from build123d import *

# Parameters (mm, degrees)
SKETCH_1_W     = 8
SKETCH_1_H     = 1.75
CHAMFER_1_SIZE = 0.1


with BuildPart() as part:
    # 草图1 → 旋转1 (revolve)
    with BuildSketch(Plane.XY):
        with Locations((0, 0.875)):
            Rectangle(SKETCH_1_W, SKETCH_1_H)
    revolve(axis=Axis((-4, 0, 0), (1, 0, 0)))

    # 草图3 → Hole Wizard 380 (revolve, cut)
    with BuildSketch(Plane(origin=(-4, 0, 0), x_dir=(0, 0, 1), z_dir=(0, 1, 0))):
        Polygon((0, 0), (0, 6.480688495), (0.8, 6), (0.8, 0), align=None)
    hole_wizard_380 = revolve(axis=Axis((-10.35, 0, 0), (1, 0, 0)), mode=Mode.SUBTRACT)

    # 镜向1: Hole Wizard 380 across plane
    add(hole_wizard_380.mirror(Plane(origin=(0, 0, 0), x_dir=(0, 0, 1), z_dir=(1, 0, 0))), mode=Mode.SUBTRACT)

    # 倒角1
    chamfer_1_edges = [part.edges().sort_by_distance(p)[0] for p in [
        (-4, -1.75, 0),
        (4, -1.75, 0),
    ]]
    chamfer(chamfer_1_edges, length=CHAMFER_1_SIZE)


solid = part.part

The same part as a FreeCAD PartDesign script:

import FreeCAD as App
import Part
import Sketcher

V = App.Vector
Q = App.Units.Quantity


def edges_at(feature, points):
    """Names of the edges that pass closest to the given points."""
    edges = feature.Shape.Edges
    near = lambda p: min(range(len(edges)), key=lambda i: edges[i].distToShape(Part.Vertex(*p))[0])
    return sorted({f"Edge{near(p) + 1}" for p in points})


def add_polygon(sketch, points):
    """Adds a closed chain of lines whose ends are joined by coincident constraints."""
    first, n = sketch.GeometryCount, len(points)
    for a, b in zip(points, points[1:] + points[:1]):
        sketch.addGeometry(Part.LineSegment(App.Vector(*a, 0), App.Vector(*b, 0)), False)
    for i in range(n):
        sketch.addConstraint(Sketcher.Constraint("Coincident", first + i, 2, first + (i + 1) % n, 1))

doc = App.newDocument("Part")
body = doc.addObject("PartDesign::Body", "Body")

# Sketch on XY plane
sketch1 = body.newObject("Sketcher::SketchObject", "Sketch")
sketch1.AttachmentSupport = (doc.getObject("XY_Plane"), [""])
sketch1.MapMode = "FlatFace"
add_polygon(sketch1, [(-4, 1.8), (-4, 0), (4, 0), (4, 1.8)])  # lines 0-3
sketch1.addConstraint([
    Sketcher.Constraint("Vertical", 0),
    Sketcher.Constraint("Horizontal", 1),
    Sketcher.Constraint("Vertical", 2),
    Sketcher.Constraint("Horizontal", 3),
    Sketcher.Constraint("Symmetric", 0, 2, 1, 2, -1, 1),
    Sketcher.Constraint("DistanceX", 1, 1, 1, 2, Q("8 mm")),
    Sketcher.Constraint("DistanceY", 0, 2, 0, 1, Q("1.75 mm")),
])
revolution = body.newObject("PartDesign::Revolution", "Revolution")
revolution.Profile = sketch1
revolution.ReferenceAxis = (sketch1, ["H_Axis"])
revolution.Angle = 360

# Sketch on XZ plane
sketch2 = body.newObject("Sketcher::SketchObject", "Sketch001")
sketch2.AttachmentSupport = (doc.getObject("XZ_Plane"), [""])
sketch2.MapMode = "FlatFace"
add_polygon(sketch2, [(2.5, 0), (-4, 0), (-4, 0.8), (2, 0.8)])  # lines 0-3
sketch2.addConstraint([
    Sketcher.Constraint("Horizontal", 0),
    Sketcher.Constraint("Vertical", 1),
    Sketcher.Constraint("Horizontal", 2),
    Sketcher.Constraint("PointOnObject", 0, 2, -1),
    Sketcher.Constraint("DistanceX", 2, 1, 2, 2, Q("6 mm")),
    Sketcher.Constraint("Angle", 3, Q("-59 deg")),
    Sketcher.Constraint("DistanceY", 1, 1, 1, 2, Q("0.8 mm")),
    Sketcher.Constraint("DistanceX", 0, 2, -1, 1, Q("4 mm")),
])
groove = body.newObject("PartDesign::Groove", "Groove")
groove.Profile = sketch2
groove.ReferenceAxis = (sketch2, ["H_Axis"])
groove.Angle = 360
doc.recompute()

mirrored = body.newObject("PartDesign::Mirrored", "Mirrored")
mirrored.Originals = [groove]
mirrored.MirrorPlane = (doc.getObject("YZ_Plane"), [""])
body.Tip = mirrored
doc.recompute()

chamfer = body.newObject("PartDesign::Chamfer", "Chamfer")
chamfer.Base = (mirrored, edges_at(mirrored, [(-4, -1.75, 0), (4, -1.75, 0)]))
chamfer.Size = 0.1

doc.recompute()
